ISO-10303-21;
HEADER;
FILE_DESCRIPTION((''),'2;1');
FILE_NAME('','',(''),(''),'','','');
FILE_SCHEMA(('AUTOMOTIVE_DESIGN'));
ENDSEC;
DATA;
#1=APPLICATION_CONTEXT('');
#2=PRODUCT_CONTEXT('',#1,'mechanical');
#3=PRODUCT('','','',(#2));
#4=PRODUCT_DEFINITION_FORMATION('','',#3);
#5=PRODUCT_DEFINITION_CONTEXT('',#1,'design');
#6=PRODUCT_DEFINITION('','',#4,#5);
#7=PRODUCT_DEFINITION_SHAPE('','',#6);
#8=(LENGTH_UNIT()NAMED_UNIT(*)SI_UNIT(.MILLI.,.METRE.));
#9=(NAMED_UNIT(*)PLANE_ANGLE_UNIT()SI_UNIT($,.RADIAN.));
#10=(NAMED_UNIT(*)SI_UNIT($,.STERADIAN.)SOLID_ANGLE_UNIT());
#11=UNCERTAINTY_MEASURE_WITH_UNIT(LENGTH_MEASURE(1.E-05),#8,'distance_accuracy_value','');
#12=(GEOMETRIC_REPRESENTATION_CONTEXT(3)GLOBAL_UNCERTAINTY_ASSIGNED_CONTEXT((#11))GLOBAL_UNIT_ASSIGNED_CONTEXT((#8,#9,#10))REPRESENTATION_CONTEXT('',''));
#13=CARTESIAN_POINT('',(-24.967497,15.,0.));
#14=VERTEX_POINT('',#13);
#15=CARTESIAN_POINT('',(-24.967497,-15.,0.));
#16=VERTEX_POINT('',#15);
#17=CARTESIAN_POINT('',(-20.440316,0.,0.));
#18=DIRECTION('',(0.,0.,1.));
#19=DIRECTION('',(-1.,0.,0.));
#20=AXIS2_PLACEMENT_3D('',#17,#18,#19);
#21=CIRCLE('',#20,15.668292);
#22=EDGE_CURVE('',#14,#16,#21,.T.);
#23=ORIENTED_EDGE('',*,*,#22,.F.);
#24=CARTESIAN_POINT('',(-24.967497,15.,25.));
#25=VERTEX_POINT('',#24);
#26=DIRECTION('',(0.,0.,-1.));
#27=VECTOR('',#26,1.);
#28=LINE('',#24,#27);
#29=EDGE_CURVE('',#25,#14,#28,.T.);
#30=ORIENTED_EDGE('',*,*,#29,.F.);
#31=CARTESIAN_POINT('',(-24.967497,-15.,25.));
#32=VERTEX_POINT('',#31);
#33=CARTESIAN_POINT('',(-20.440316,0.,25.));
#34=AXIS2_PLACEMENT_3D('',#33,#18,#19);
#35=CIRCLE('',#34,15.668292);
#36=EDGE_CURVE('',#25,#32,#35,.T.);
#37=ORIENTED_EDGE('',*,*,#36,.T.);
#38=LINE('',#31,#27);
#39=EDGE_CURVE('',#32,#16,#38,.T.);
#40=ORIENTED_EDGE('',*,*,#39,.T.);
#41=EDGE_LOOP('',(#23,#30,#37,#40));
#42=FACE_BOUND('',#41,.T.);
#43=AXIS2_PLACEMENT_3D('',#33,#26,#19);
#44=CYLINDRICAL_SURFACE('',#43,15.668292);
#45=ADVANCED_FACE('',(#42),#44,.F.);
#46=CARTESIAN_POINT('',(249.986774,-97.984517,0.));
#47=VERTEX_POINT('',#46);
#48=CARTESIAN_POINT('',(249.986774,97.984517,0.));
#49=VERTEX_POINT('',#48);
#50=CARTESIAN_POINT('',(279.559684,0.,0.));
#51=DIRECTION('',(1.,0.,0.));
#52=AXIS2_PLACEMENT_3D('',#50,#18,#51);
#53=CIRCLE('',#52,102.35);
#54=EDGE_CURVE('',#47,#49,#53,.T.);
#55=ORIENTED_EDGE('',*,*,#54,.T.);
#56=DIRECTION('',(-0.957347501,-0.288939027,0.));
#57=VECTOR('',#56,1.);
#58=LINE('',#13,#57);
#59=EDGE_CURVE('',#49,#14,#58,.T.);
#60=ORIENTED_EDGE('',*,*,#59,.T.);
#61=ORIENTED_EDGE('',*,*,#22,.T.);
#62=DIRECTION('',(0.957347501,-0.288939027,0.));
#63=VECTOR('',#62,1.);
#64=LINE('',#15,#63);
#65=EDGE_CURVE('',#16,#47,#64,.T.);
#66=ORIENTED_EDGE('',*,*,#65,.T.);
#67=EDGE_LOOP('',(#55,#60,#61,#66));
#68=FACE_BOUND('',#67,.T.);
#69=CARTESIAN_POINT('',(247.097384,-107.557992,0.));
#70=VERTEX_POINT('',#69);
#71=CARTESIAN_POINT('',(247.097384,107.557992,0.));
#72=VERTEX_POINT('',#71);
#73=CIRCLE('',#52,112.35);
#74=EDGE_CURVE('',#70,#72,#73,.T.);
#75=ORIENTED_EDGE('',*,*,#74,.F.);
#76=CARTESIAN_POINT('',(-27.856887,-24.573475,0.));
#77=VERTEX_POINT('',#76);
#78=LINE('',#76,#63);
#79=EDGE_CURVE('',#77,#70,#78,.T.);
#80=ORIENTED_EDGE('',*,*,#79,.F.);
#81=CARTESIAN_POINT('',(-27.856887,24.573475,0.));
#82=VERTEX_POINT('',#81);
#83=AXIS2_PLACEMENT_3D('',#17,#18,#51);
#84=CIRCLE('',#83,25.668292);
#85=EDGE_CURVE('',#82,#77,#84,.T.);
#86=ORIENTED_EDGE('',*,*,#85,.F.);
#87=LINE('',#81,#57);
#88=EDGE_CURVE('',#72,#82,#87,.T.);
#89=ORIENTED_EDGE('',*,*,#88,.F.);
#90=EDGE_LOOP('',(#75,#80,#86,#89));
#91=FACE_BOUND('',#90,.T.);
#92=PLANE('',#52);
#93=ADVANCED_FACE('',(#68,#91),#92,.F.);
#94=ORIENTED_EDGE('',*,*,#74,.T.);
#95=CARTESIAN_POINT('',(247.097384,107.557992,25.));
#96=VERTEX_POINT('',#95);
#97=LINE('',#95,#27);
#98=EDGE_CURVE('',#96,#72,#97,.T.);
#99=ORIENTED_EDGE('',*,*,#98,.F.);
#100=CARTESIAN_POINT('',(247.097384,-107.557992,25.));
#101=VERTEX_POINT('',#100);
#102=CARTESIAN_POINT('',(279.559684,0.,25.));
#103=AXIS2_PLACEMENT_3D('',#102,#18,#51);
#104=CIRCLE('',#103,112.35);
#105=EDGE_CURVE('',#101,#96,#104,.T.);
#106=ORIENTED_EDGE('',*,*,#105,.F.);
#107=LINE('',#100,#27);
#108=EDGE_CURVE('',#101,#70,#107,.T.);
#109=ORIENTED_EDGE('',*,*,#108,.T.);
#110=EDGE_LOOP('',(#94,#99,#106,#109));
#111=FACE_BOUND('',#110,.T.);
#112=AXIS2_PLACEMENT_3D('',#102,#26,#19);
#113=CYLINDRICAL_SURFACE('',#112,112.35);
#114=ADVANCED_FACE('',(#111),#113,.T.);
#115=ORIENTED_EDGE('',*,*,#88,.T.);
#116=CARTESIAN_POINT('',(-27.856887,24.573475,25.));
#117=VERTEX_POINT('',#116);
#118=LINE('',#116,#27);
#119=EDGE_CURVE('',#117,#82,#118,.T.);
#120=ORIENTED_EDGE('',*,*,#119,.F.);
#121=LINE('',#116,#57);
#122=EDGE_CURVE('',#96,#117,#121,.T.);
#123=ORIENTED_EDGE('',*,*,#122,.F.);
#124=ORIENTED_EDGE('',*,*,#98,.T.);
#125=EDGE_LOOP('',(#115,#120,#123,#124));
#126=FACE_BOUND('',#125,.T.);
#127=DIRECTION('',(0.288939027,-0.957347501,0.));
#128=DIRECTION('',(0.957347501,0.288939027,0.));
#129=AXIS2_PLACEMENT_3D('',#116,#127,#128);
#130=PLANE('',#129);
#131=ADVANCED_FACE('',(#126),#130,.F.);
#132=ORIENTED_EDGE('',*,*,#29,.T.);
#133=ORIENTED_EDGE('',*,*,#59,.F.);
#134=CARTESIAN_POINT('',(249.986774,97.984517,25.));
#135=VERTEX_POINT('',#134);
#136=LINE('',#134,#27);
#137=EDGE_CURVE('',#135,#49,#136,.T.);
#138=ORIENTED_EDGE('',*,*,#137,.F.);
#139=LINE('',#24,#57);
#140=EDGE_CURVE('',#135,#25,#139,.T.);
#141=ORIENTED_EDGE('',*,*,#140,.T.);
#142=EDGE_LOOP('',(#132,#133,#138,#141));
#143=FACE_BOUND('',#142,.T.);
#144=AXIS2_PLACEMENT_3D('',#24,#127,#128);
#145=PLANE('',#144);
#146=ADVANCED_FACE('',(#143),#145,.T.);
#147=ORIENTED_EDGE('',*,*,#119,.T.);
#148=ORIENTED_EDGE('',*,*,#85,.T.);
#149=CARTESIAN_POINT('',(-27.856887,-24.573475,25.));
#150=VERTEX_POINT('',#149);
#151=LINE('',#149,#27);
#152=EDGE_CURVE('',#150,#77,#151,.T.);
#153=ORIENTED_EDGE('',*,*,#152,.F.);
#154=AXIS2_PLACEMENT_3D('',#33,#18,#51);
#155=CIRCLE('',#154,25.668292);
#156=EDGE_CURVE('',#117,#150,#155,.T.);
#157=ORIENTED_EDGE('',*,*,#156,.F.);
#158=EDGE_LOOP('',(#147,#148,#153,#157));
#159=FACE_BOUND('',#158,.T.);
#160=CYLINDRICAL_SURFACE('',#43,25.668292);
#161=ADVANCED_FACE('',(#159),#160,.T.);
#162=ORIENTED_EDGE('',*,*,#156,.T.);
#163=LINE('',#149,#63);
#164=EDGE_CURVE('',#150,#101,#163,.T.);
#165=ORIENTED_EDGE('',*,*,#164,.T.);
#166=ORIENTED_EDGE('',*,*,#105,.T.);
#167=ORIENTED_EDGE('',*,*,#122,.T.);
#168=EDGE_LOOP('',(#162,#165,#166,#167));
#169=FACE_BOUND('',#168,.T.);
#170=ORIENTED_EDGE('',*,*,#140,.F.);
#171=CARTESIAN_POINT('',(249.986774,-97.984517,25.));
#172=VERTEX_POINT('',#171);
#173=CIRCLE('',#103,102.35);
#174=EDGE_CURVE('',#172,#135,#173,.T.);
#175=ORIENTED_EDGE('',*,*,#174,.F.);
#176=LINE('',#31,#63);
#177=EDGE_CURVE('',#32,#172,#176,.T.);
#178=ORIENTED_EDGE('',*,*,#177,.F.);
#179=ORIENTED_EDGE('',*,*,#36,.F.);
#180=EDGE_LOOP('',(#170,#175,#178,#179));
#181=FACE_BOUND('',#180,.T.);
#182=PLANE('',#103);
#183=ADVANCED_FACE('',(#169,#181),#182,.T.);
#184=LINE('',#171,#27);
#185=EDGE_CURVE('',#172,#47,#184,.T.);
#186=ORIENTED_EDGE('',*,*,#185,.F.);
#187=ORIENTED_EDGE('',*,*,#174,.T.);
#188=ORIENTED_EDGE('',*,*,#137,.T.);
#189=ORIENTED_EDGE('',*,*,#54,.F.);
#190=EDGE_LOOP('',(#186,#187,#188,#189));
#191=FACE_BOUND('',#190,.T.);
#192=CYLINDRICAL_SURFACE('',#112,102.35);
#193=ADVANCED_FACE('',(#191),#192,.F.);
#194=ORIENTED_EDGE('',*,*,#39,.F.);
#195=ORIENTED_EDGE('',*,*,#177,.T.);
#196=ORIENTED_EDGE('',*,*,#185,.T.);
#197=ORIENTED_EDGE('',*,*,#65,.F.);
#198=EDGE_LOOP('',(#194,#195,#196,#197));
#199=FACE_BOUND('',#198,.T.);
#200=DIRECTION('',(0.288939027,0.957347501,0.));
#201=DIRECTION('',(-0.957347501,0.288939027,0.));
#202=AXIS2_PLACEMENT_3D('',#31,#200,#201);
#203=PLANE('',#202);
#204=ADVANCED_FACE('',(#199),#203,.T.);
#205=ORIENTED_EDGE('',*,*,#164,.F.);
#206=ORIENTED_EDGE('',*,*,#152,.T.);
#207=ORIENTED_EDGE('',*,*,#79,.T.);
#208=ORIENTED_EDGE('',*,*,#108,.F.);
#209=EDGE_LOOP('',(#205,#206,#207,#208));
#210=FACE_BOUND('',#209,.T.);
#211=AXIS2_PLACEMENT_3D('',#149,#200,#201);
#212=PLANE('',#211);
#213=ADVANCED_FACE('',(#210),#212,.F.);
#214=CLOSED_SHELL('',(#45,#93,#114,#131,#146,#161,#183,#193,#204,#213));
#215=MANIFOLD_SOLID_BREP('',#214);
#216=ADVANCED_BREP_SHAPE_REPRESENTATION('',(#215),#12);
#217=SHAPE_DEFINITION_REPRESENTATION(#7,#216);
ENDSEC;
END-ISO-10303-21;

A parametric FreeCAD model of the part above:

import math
import FreeCAD as App
import Part
import Sketcher
from FreeCAD import Vector
Q = App.Units.Quantity

doc = App.newDocument("Part")
params = doc.addObject("Spreadsheet::Sheet", "Params")
for row, (alias, value) in enumerate([
    ("sketch1_radius", "112.35 mm"),
    ("sketch1_radius2", "102.35 mm"),
    ("pad1_length", "25 mm"),
], start=1):
    params.set(f"A{row}", alias)
    params.set(f"B{row}", "=" + value)
    params.setAlias(f"B{row}", alias)

body = doc.addObject("PartDesign::Body", "Body")

sketch1 = doc.addObject("Sketcher::SketchObject", "Sketch")
body.addObject(sketch1)
sketch1.AttachmentSupport = (doc.XY_Plane, [""])
sketch1.MapMode = "FlatFace"
sketch1.addGeometry(Part.LineSegment(Vector(247, 108, 0), Vector(-28, 25, 0)), False)
sketch1.addGeometry(Part.ArcOfCircle(Part.Circle(Vector(-20, 0, 0), Vector(0, 0, 1), 26), math.radians(107), math.radians(253)), False)
sketch1.addGeometry(Part.LineSegment(Vector(-28, -25, 0), Vector(247, -108, 0)), False)
sketch1.addGeometry(Part.ArcOfCircle(Part.Circle(Vector(280, 0, 0), Vector(0, 0, 1), 112), math.radians(-107), math.radians(107)), False)
sketch1.addGeometry(Part.LineSegment(Vector(-25, 15, 0), Vector(250, 98, 0)), False)
sketch1.addGeometry(Part.ArcOfCircle(Part.Circle(Vector(280, 0, 0), Vector(0, 0, 1), 102), math.radians(-107), math.radians(107)), False)
sketch1.addGeometry(Part.LineSegment(Vector(250, -98, 0), Vector(-25, -15, 0)), False)
sketch1.addGeometry(Part.ArcOfCircle(Part.Circle(Vector(-20, 0, 0), Vector(0, 0, 1), 16), math.radians(107), math.radians(253)), False)
sketch1.addConstraint(Sketcher.Constraint("Tangent", 0, 2, 1, 1))
sketch1.addConstraint(Sketcher.Constraint("Tangent", 1, 2, 2, 1))
sketch1.addConstraint(Sketcher.Constraint("Tangent", 2, 2, 3, 1))
sketch1.addConstraint(Sketcher.Constraint("Tangent", 3, 2, 0, 1))
sketch1.addConstraint(Sketcher.Constraint("Tangent", 4, 2, 5, 2))
sketch1.addConstraint(Sketcher.Constraint("Tangent", 5, 1, 6, 1))
sketch1.addConstraint(Sketcher.Constraint("Tangent", 6, 2, 7, 2))
sketch1.addConstraint(Sketcher.Constraint("Tangent", 7, 1, 4, 1))
sketch1.addConstraint(Sketcher.Constraint("Coincident", 5, 3, 3, 3))
sketch1.addConstraint(Sketcher.Constraint("Coincident", 7, 3, 1, 3))
sketch1.addConstraint(Sketcher.Constraint("Symmetric", 0, 2, 1, 2, -1))
sketch1.addConstraint(Sketcher.Constraint("Parallel", 0, 4))
sketch1.addConstraint(Sketcher.Constraint("Radius", 3, Q("112.35 mm")))
sketch1.addConstraint(Sketcher.Constraint("Radius", 5, Q("102.35 mm")))
sketch1.addConstraint(Sketcher.Constraint("DistanceY", 6, 2, -1, 1, Q("15 mm")))
sketch1.addConstraint(Sketcher.Constraint("DistanceX", 1, 3, 3, 3, Q("300 mm")))
sketch1.addConstraint(Sketcher.Constraint("DistanceX", 1, 3, -1, 1, Q("20.440316 mm")))
sketch1.setExpression("Constraints[12]", "Params.sketch1_radius")
sketch1.setExpression("Constraints[13]", "Params.sketch1_radius2")
pad1 = doc.addObject("PartDesign::Pad", "Pad")
body.addObject(pad1)
pad1.Profile = sketch1
pad1.setExpression("Length", "Params.pad1_length")

doc.recompute()
